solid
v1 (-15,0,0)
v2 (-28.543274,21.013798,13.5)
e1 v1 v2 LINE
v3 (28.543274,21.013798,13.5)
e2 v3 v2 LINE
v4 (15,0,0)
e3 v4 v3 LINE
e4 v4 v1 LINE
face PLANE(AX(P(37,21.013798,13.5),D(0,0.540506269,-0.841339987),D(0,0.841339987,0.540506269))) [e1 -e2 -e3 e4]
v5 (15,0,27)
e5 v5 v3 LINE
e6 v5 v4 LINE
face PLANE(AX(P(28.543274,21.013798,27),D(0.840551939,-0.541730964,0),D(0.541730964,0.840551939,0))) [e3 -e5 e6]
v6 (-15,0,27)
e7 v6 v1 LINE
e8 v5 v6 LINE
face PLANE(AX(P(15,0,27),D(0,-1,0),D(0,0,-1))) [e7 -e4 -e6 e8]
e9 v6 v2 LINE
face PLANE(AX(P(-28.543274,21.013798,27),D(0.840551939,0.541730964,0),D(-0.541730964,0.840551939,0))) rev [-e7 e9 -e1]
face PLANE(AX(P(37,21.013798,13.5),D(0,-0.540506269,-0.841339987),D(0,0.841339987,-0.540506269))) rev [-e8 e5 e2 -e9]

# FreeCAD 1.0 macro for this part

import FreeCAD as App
import Part
import Sketcher

doc = App.newDocument("Part")
body = doc.addObject("PartDesign::Body", "Body")

# Sketch on XY plane
sketch1 = doc.addObject("Sketcher::SketchObject", "Sketch")
body.addObject(sketch1)
sketch1.AttachmentSupport = (doc.XY_Plane, [""])
sketch1.MapMode = "FlatFace"
sketch1.addGeometry(Part.LineSegment(App.Vector(-15, 0, 0), App.Vector(15, 0, 0)), False)
sketch1.addGeometry(Part.LineSegment(App.Vector(15, 0, 0), App.Vector(29, 21, 0)), False)
sketch1.addGeometry(Part.LineSegment(App.Vector(29, 21, 0), App.Vector(-29, 21, 0)), False)
sketch1.addGeometry(Part.LineSegment(App.Vector(-29, 21, 0), App.Vector(-15, 0, 0)), False)
sketch1.addConstraint(Sketcher.Constraint("Coincident", 0, 2, 1, 1))
sketch1.addConstraint(Sketcher.Constraint("Coincident", 1, 2, 2, 1))
sketch1.addConstraint(Sketcher.Constraint("Coincident", 2, 2, 3, 1))
sketch1.addConstraint(Sketcher.Constraint("Coincident", 3, 2, 0, 1))
sketch1.addConstraint(Sketcher.Constraint("Horizontal", 0))
sketch1.addConstraint(Sketcher.Constraint("Horizontal", 2))
sketch1.addConstraint(Sketcher.Constraint("Symmetric", 0, 2, 3, 2, -1, 1))
sketch1.addConstraint(Sketcher.Constraint("Equal", 1, 3))
sketch1.addConstraint(Sketcher.Constraint("DistanceX", 0, 1, 0, 2, 30.0))
sketch1.addConstraint(Sketcher.Constraint("Distance", 1, 25.0))
sketch1.addConstraint(Sketcher.Constraint("DistanceX", 2, 2, 2, 1, 57.086548))
pad1 = doc.addObject("PartDesign::Pad", "Pad")
body.addObject(pad1)
pad1.Profile = sketch1
pad1.Length = 27

# Sketch on YZ plane
sketch2 = doc.addObject("Sketcher::SketchObject", "Sketch001")
body.addObject(sketch2)
sketch2.AttachmentSupport = (doc.YZ_Plane, [""])
sketch2.MapMode = "FlatFace"
sketch2.addGeometry(Part.LineSegment(App.Vector(21, 14, 0), App.Vector(0, 0, 0)), False)
sketch2.addGeometry(Part.LineSegment(App.Vector(0, 0, 0), App.Vector(21, 0, 0)), False)
sketch2.addGeometry(Part.LineSegment(App.Vector(21, 0, 0), App.Vector(21, 14, 0)), False)
sketch2.addConstraint(Sketcher.Constraint("Coincident", 0, 2, 1, 1))
sketch2.addConstraint(Sketcher.Constraint("Coincident", 1, 2, 2, 1))
sketch2.addConstraint(Sketcher.Constraint("Coincident", 2, 2, 0, 1))
sketch2.addConstraint(Sketcher.Constraint("Horizontal", 1))
sketch2.addConstraint(Sketcher.Constraint("Vertical", 2))
sketch2.addConstraint(Sketcher.Constraint("Coincident", 0, 2, -1, 1))
sketch2.addConstraint(Sketcher.Constraint("DistanceY", 2, 1, 2, 2, 13.5))
sketch2.addConstraint(Sketcher.Constraint("DistanceX", 1, 1, 1, 2, 21.013798))
pocket1 = doc.addObject("PartDesign::Pocket", "Pocket")
body.addObject(pocket1)
pocket1.Profile = sketch2
pocket1.Type = "ThroughAll"
pocket1.Midplane = True

# Sketch on YZ plane
sketch3 = doc.addObject("Sketcher::SketchObject", "Sketch002")
body.addObject(sketch3)
sketch3.AttachmentSupport = (doc.YZ_Plane, [""])
sketch3.MapMode = "FlatFace"
sketch3.addGeometry(Part.LineSegment(App.Vector(0, 27, 0), App.Vector(21, 14, 0)), False)
sketch3.addGeometry(Part.LineSegment(App.Vector(21, 14, 0), App.Vector(21, 27, 0)), False)
sketch3.addGeometry(Part.LineSegment(App.Vector(21, 27, 0), App.Vector(0, 27, 0)), False)
sketch3.addConstraint(Sketcher.Constraint("Coincident", 0, 2, 1, 1))
sketch3.addConstraint(Sketcher.Constraint("Coincident", 1, 2, 2, 1))
sketch3.addConstraint(Sketcher.Constraint("Coincident", 2, 2, 0, 1))
sketch3.addConstraint(Sketcher.Constraint("Vertical", 1))
sketch3.addConstraint(Sketcher.Constraint("Horizontal", 2))
sketch3.addConstraint(Sketcher.Constraint("PointOnObject", 2, 2, -2))
sketch3.addConstraint(Sketcher.Constraint("DistanceY", 1, 1, 1, 2, 13.5))
sketch3.addConstraint(Sketcher.Constraint("DistanceY", -1, 1, 1, 2, 27.0))
sketch3.addConstraint(Sketcher.Constraint("DistanceX", 2, 2, 2, 1, 21.013798))
pocket2 = doc.addObject("PartDesign::Pocket", "Pocket001")
body.addObject(pocket2)
pocket2.Profile = sketch3
pocket2.Type = "ThroughAll"
pocket2.Midplane = True

doc.recompute()
